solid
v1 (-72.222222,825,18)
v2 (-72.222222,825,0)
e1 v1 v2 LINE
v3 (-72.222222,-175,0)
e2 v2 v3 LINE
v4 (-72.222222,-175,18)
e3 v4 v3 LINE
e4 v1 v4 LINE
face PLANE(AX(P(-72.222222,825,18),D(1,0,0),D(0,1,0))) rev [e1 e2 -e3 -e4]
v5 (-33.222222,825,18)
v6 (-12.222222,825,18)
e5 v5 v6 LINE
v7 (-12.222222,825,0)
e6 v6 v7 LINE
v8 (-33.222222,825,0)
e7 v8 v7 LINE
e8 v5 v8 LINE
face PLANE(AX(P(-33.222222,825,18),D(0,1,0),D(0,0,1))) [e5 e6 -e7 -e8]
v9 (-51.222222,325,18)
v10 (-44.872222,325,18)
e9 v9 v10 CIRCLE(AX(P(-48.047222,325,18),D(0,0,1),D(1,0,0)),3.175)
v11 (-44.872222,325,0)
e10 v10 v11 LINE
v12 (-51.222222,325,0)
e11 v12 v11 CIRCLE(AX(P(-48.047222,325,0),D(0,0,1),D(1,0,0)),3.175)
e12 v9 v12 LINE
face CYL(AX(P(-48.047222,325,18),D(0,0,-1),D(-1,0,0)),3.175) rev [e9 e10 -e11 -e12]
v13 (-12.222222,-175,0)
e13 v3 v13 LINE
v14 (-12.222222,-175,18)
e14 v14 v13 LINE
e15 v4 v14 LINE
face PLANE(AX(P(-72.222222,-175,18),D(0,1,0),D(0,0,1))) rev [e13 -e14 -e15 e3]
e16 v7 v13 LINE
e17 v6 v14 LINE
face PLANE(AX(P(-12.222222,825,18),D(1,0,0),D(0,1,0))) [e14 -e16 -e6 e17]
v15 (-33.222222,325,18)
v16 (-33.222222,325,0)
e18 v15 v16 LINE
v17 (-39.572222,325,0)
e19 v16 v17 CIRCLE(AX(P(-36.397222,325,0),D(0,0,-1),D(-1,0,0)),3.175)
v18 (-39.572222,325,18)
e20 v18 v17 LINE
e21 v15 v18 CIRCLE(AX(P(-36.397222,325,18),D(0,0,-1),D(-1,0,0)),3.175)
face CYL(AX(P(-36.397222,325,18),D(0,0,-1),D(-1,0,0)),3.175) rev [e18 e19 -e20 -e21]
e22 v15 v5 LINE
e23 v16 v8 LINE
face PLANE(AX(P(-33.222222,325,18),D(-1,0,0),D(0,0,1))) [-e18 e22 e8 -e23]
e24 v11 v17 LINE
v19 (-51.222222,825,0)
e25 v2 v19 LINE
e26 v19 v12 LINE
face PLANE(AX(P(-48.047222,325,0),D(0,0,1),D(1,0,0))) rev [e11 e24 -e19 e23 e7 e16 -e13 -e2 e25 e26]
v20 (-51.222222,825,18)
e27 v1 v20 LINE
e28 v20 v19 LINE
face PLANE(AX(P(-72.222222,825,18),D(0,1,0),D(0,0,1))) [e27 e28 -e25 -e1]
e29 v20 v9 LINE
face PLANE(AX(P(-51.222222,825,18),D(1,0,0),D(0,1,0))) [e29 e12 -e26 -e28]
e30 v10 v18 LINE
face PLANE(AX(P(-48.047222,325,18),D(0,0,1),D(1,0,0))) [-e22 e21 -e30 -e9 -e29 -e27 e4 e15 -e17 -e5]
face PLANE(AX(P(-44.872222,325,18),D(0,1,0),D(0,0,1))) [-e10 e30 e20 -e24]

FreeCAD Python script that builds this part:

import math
import FreeCAD as App
import Part
import Sketcher

V = App.Vector

doc = App.newDocument("Part")
body = doc.addObject("PartDesign::Body", "Body")

# Sketch on XY plane
sketch1 = doc.addObject("Sketcher::SketchObject", "Sketch")
body.addObject(sketch1)
sketch1.AttachmentSupport = (doc.XY_Plane, [""])
sketch1.MapMode = "FlatFace"
sketch1.addGeometry(Part.LineSegment(V(-51.2, 325, 0), V(-51.2, 825, 0)), False)
sketch1.addGeometry(Part.LineSegment(V(-51.2, 825, 0), V(-72.2, 825, 0)), False)
sketch1.addGeometry(Part.LineSegment(V(-72.2, 825, 0), V(-72.2, -175, 0)), False)
sketch1.addGeometry(Part.LineSegment(V(-72.2, -175, 0), V(-12.2, -175, 0)), False)
sketch1.addGeometry(Part.LineSegment(V(-12.2, -175, 0), V(-12.2, 825, 0)), False)
sketch1.addGeometry(Part.LineSegment(V(-12.2, 825, 0), V(-33.2, 825, 0)), False)
sketch1.addGeometry(Part.LineSegment(V(-33.2, 825, 0), V(-33.2, 325, 0)), False)
sketch1.addGeometry(Part.ArcOfCircle(Part.Circle(V(-36.4, 325, 0), V(0, 0, 1), 3.2), math.radians(180), math.radians(360)), False)
sketch1.addGeometry(Part.LineSegment(V(-39.6, 325, 0), V(-44.9, 325, 0)), False)
sketch1.addGeometry(Part.ArcOfCircle(Part.Circle(V(-48, 325, 0), V(0, 0, 1), 3.2), math.radians(180), math.radians(360)), False)
sketch1.addConstraint(Sketcher.Constraint("Coincident", 0, 2, 1, 1))
sketch1.addConstraint(Sketcher.Constraint("Coincident", 1, 2, 2, 1))
sketch1.addConstraint(Sketcher.Constraint("Coincident", 2, 2, 3, 1))
sketch1.addConstraint(Sketcher.Constraint("Coincident", 3, 2, 4, 1))
sketch1.addConstraint(Sketcher.Constraint("Coincident", 4, 2, 5, 1))
sketch1.addConstraint(Sketcher.Constraint("Coincident", 5, 2, 6, 1))
sketch1.addConstraint(Sketcher.Constraint("Tangent", 6, 2, 7, 2))
sketch1.addConstraint(Sketcher.Constraint("Coincident", 7, 1, 8, 1))
sketch1.addConstraint(Sketcher.Constraint("Coincident", 8, 2, 9, 2))
sketch1.addConstraint(Sketcher.Constraint("Tangent", 9, 1, 0, 1))
sketch1.addConstraint(Sketcher.Constraint("Vertical", 0))
sketch1.addConstraint(Sketcher.Constraint("Horizontal", 1))
sketch1.addConstraint(Sketcher.Constraint("Vertical", 2))
sketch1.addConstraint(Sketcher.Constraint("Horizontal", 3))
sketch1.addConstraint(Sketcher.Constraint("Vertical", 4))
sketch1.addConstraint(Sketcher.Constraint("Horizontal", 5))
sketch1.addConstraint(Sketcher.Constraint("Vertical", 6))
sketch1.addConstraint(Sketcher.Constraint("Horizontal", 8))
sketch1.addConstraint(Sketcher.Constraint("Equal", 7, 9))
sketch1.addConstraint(Sketcher.Constraint("Horizontal", 7, 3, 9, 3))
sketch1.addConstraint(Sketcher.Constraint("Horizontal", 1, 2, 4, 2))
sketch1.addConstraint(Sketcher.Constraint("Horizontal", 6, 2, 7, 1))
sketch1.addConstraint(Sketcher.Constraint("Equal", 1, 5))
sketch1.addConstraint(Sketcher.Constraint("DistanceX", 1, 2, 1, 1, 21.0))
sketch1.addConstraint(Sketcher.Constraint("DistanceX", 3, 1, 3, 2, 60.0))
sketch1.addConstraint(Sketcher.Constraint("DistanceY", 0, 1, 0, 2, 500.0))
sketch1.addConstraint(Sketcher.Constraint("DistanceY", 2, 2, 2, 1, 1000.0))
sketch1.addConstraint(Sketcher.Constraint("DistanceX", 8, 2, 8, 1, 5.3))
sketch1.addConstraint(Sketcher.Constraint("DistanceY", -1, 1, 7, 3, 325.0))
sketch1.addConstraint(Sketcher.Constraint("DistanceX", 7, 3, -1, 1, 36.397222))
pad1 = doc.addObject("PartDesign::Pad", "Pad")
body.addObject(pad1)
pad1.Profile = sketch1
pad1.Length = 18

doc.recompute()
